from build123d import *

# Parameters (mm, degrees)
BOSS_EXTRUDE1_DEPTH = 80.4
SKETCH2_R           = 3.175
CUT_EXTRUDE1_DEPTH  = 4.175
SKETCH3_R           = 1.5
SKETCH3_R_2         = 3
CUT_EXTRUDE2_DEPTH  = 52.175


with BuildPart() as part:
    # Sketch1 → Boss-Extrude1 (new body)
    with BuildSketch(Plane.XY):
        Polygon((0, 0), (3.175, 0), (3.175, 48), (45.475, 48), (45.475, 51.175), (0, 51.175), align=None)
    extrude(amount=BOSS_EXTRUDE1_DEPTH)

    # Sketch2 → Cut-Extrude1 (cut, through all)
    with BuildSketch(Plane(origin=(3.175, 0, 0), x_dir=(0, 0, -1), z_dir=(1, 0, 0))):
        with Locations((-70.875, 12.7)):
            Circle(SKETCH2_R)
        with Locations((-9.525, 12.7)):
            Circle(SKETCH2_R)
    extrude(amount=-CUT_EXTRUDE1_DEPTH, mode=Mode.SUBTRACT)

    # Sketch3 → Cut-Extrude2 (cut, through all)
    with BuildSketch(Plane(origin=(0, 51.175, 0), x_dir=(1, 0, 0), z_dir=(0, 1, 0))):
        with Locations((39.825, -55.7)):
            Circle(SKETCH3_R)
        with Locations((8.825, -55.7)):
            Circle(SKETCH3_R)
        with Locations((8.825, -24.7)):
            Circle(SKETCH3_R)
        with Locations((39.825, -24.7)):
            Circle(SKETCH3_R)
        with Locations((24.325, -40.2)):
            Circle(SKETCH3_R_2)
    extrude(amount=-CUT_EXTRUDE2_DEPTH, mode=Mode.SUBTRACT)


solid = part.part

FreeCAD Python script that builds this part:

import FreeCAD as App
import Part
import Sketcher

V = App.Vector

doc = App.newDocument("Part")
body = doc.addObject("PartDesign::Body", "Body")

sketch1 = body.newObject("Sketcher::SketchObject", "Sketch")
sketch1.AttachmentSupport = (doc.getObject("XY_Plane"), [""])
sketch1.MapMode = "FlatFace"
sketch1.addGeometry(Part.LineSegment(V(0, 0, 0), V(3.2, 0, 0)), False)
sketch1.addGeometry(Part.LineSegment(V(3.2, 0, 0), V(3.2, 48, 0)), False)
sketch1.addGeometry(Part.LineSegment(V(3.2, 48, 0), V(45.5, 48, 0)), False)
sketch1.addGeometry(Part.LineSegment(V(45.5, 48, 0), V(45.5, 51.2, 0)), False)
sketch1.addGeometry(Part.LineSegment(V(45.5, 51.2, 0), V(0, 51.2, 0)), False)
sketch1.addGeometry(Part.LineSegment(V(0, 51.2, 0), V(0, 0, 0)), False)
sketch1.addConstraint(Sketcher.Constraint("Coincident", 0, 2, 1, 1))
sketch1.addConstraint(Sketcher.Constraint("Coincident", 1, 2, 2, 1))
sketch1.addConstraint(Sketcher.Constraint("Coincident", 2, 2, 3, 1))
sketch1.addConstraint(Sketcher.Constraint("Coincident", 3, 2, 4, 1))
sketch1.addConstraint(Sketcher.Constraint("Coincident", 4, 2, 5, 1))
sketch1.addConstraint(Sketcher.Constraint("Coincident", 5, 2, 0, 1))
sketch1.addConstraint(Sketcher.Constraint("Horizontal", 0))
sketch1.addConstraint(Sketcher.Constraint("Vertical", 1))
sketch1.addConstraint(Sketcher.Constraint("Horizontal", 2))
sketch1.addConstraint(Sketcher.Constraint("Vertical", 3))
sketch1.addConstraint(Sketcher.Constraint("Horizontal", 4))
sketch1.addConstraint(Sketcher.Constraint("Vertical", 5))
sketch1.addConstraint(Sketcher.Constraint("Coincident", 5, 2, -1, 1))
sketch1.addConstraint(Sketcher.Constraint("Equal", 0, 3))
sketch1.addConstraint(Sketcher.Constraint("DistanceY", 1, 1, 1, 2, 48.0))
sketch1.addConstraint(Sketcher.Constraint("DistanceX", 2, 1, 2, 2, 42.3))
sketch1.addConstraint(Sketcher.Constraint("DistanceX", 0, 1, 0, 2, 3.175))
pad1 = body.newObject("PartDesign::Pad", "Pad")
pad1.Profile = sketch1
pad1.Length = 80.4

sketch2 = body.newObject("Sketcher::SketchObject", "Sketch001")
sketch2.AttachmentSupport = (doc.getObject("YZ_Plane"), [""])
sketch2.MapMode = "FlatFace"
sketch2.AttachmentOffset = App.Placement(V(0, 0, 3.175), App.Rotation())
sketch2.addGeometry(Part.Circle(V(12.7, 70.9, 0), V(0, 0, 1), 3.2), False)
sketch2.addGeometry(Part.Circle(V(12.7, 9.5, 0), V(0, 0, 1), 3.2), False)
sketch2.addConstraint(Sketcher.Constraint("Equal", 0, 1))
sketch2.addConstraint(Sketcher.Constraint("Vertical", 0, 3, 1, 3))
sketch2.addConstraint(Sketcher.Constraint("Diameter", 0, 6.35))
sketch2.addConstraint(Sketcher.Constraint("DistanceX", -1, 1, 0, 3, 12.7))
sketch2.addConstraint(Sketcher.Constraint("DistanceY", 1, 3, 0, 3, 61.35))
sketch2.addConstraint(Sketcher.Constraint("DistanceY", -1, 1, 0, 3, 70.875))
pocket1 = body.newObject("PartDesign::Pocket", "Pocket")
pocket1.Profile = sketch2
pocket1.Type = "ThroughAll"

sketch3 = body.newObject("Sketcher::SketchObject", "Sketch002")
sketch3.AttachmentSupport = (doc.getObject("XZ_Plane"), [""])
sketch3.MapMode = "FlatFace"
sketch3.AttachmentOffset = App.Placement(V(0, 0, -51.175), App.Rotation())
sketch3.addGeometry(Part.Circle(V(39.8, 55.7, 0), V(0, 0, 1), 1.5), False)
sketch3.addGeometry(Part.Circle(V(8.8, 55.7, 0), V(0, 0, 1), 1.5), False)
sketch3.addGeometry(Part.Circle(V(8.8, 24.7, 0), V(0, 0, 1), 1.5), False)
sketch3.addGeometry(Part.Circle(V(39.8, 24.7, 0), V(0, 0, 1), 1.5), False)
sketch3.addGeometry(Part.Circle(V(24.3, 40.2, 0), V(0, 0, 1), 3), False)
sketch3.addConstraint(Sketcher.Constraint("Equal", 0, 1))
sketch3.addConstraint(Sketcher.Constraint("Equal", 1, 2))
sketch3.addConstraint(Sketcher.Constraint("Equal", 2, 3))
sketch3.addConstraint(Sketcher.Constraint("Horizontal", 0, 3, 1, 3))
sketch3.addConstraint(Sketcher.Constraint("Horizontal", 2, 3, 3, 3))
sketch3.addConstraint(Sketcher.Constraint("Vertical", 1, 3, 2, 3))
sketch3.addConstraint(Sketcher.Constraint("Vertical", 0, 3, 3, 3))
sketch3.addConstraint(Sketcher.Constraint("Diameter", 0, 3.0))
sketch3.addConstraint(Sketcher.Constraint("Diameter", 4, 6.0))
sketch3.addConstraint(Sketcher.Constraint("DistanceX", 1, 3, 0, 3, 31.0))
sketch3.addConstraint(Sketcher.Constraint("DistanceY", 2, 3, 1, 3, 31.0))
sketch3.addConstraint(Sketcher.Constraint("DistanceY", -1, 1, 0, 3, 55.7))
sketch3.addConstraint(Sketcher.Constraint("DistanceY", -1, 1, 4, 3, 40.2))
sketch3.addConstraint(Sketcher.Constraint("DistanceX", 1, 3, 4, 3, 15.5))
sketch3.addConstraint(Sketcher.Constraint("DistanceX", -1, 1, 0, 3, 39.825))
pocket2 = body.newObject("PartDesign::Pocket", "Pocket001")
pocket2.Profile = sketch3
pocket2.Type = "ThroughAll"
pocket2.Reversed = True

doc.recompute()
